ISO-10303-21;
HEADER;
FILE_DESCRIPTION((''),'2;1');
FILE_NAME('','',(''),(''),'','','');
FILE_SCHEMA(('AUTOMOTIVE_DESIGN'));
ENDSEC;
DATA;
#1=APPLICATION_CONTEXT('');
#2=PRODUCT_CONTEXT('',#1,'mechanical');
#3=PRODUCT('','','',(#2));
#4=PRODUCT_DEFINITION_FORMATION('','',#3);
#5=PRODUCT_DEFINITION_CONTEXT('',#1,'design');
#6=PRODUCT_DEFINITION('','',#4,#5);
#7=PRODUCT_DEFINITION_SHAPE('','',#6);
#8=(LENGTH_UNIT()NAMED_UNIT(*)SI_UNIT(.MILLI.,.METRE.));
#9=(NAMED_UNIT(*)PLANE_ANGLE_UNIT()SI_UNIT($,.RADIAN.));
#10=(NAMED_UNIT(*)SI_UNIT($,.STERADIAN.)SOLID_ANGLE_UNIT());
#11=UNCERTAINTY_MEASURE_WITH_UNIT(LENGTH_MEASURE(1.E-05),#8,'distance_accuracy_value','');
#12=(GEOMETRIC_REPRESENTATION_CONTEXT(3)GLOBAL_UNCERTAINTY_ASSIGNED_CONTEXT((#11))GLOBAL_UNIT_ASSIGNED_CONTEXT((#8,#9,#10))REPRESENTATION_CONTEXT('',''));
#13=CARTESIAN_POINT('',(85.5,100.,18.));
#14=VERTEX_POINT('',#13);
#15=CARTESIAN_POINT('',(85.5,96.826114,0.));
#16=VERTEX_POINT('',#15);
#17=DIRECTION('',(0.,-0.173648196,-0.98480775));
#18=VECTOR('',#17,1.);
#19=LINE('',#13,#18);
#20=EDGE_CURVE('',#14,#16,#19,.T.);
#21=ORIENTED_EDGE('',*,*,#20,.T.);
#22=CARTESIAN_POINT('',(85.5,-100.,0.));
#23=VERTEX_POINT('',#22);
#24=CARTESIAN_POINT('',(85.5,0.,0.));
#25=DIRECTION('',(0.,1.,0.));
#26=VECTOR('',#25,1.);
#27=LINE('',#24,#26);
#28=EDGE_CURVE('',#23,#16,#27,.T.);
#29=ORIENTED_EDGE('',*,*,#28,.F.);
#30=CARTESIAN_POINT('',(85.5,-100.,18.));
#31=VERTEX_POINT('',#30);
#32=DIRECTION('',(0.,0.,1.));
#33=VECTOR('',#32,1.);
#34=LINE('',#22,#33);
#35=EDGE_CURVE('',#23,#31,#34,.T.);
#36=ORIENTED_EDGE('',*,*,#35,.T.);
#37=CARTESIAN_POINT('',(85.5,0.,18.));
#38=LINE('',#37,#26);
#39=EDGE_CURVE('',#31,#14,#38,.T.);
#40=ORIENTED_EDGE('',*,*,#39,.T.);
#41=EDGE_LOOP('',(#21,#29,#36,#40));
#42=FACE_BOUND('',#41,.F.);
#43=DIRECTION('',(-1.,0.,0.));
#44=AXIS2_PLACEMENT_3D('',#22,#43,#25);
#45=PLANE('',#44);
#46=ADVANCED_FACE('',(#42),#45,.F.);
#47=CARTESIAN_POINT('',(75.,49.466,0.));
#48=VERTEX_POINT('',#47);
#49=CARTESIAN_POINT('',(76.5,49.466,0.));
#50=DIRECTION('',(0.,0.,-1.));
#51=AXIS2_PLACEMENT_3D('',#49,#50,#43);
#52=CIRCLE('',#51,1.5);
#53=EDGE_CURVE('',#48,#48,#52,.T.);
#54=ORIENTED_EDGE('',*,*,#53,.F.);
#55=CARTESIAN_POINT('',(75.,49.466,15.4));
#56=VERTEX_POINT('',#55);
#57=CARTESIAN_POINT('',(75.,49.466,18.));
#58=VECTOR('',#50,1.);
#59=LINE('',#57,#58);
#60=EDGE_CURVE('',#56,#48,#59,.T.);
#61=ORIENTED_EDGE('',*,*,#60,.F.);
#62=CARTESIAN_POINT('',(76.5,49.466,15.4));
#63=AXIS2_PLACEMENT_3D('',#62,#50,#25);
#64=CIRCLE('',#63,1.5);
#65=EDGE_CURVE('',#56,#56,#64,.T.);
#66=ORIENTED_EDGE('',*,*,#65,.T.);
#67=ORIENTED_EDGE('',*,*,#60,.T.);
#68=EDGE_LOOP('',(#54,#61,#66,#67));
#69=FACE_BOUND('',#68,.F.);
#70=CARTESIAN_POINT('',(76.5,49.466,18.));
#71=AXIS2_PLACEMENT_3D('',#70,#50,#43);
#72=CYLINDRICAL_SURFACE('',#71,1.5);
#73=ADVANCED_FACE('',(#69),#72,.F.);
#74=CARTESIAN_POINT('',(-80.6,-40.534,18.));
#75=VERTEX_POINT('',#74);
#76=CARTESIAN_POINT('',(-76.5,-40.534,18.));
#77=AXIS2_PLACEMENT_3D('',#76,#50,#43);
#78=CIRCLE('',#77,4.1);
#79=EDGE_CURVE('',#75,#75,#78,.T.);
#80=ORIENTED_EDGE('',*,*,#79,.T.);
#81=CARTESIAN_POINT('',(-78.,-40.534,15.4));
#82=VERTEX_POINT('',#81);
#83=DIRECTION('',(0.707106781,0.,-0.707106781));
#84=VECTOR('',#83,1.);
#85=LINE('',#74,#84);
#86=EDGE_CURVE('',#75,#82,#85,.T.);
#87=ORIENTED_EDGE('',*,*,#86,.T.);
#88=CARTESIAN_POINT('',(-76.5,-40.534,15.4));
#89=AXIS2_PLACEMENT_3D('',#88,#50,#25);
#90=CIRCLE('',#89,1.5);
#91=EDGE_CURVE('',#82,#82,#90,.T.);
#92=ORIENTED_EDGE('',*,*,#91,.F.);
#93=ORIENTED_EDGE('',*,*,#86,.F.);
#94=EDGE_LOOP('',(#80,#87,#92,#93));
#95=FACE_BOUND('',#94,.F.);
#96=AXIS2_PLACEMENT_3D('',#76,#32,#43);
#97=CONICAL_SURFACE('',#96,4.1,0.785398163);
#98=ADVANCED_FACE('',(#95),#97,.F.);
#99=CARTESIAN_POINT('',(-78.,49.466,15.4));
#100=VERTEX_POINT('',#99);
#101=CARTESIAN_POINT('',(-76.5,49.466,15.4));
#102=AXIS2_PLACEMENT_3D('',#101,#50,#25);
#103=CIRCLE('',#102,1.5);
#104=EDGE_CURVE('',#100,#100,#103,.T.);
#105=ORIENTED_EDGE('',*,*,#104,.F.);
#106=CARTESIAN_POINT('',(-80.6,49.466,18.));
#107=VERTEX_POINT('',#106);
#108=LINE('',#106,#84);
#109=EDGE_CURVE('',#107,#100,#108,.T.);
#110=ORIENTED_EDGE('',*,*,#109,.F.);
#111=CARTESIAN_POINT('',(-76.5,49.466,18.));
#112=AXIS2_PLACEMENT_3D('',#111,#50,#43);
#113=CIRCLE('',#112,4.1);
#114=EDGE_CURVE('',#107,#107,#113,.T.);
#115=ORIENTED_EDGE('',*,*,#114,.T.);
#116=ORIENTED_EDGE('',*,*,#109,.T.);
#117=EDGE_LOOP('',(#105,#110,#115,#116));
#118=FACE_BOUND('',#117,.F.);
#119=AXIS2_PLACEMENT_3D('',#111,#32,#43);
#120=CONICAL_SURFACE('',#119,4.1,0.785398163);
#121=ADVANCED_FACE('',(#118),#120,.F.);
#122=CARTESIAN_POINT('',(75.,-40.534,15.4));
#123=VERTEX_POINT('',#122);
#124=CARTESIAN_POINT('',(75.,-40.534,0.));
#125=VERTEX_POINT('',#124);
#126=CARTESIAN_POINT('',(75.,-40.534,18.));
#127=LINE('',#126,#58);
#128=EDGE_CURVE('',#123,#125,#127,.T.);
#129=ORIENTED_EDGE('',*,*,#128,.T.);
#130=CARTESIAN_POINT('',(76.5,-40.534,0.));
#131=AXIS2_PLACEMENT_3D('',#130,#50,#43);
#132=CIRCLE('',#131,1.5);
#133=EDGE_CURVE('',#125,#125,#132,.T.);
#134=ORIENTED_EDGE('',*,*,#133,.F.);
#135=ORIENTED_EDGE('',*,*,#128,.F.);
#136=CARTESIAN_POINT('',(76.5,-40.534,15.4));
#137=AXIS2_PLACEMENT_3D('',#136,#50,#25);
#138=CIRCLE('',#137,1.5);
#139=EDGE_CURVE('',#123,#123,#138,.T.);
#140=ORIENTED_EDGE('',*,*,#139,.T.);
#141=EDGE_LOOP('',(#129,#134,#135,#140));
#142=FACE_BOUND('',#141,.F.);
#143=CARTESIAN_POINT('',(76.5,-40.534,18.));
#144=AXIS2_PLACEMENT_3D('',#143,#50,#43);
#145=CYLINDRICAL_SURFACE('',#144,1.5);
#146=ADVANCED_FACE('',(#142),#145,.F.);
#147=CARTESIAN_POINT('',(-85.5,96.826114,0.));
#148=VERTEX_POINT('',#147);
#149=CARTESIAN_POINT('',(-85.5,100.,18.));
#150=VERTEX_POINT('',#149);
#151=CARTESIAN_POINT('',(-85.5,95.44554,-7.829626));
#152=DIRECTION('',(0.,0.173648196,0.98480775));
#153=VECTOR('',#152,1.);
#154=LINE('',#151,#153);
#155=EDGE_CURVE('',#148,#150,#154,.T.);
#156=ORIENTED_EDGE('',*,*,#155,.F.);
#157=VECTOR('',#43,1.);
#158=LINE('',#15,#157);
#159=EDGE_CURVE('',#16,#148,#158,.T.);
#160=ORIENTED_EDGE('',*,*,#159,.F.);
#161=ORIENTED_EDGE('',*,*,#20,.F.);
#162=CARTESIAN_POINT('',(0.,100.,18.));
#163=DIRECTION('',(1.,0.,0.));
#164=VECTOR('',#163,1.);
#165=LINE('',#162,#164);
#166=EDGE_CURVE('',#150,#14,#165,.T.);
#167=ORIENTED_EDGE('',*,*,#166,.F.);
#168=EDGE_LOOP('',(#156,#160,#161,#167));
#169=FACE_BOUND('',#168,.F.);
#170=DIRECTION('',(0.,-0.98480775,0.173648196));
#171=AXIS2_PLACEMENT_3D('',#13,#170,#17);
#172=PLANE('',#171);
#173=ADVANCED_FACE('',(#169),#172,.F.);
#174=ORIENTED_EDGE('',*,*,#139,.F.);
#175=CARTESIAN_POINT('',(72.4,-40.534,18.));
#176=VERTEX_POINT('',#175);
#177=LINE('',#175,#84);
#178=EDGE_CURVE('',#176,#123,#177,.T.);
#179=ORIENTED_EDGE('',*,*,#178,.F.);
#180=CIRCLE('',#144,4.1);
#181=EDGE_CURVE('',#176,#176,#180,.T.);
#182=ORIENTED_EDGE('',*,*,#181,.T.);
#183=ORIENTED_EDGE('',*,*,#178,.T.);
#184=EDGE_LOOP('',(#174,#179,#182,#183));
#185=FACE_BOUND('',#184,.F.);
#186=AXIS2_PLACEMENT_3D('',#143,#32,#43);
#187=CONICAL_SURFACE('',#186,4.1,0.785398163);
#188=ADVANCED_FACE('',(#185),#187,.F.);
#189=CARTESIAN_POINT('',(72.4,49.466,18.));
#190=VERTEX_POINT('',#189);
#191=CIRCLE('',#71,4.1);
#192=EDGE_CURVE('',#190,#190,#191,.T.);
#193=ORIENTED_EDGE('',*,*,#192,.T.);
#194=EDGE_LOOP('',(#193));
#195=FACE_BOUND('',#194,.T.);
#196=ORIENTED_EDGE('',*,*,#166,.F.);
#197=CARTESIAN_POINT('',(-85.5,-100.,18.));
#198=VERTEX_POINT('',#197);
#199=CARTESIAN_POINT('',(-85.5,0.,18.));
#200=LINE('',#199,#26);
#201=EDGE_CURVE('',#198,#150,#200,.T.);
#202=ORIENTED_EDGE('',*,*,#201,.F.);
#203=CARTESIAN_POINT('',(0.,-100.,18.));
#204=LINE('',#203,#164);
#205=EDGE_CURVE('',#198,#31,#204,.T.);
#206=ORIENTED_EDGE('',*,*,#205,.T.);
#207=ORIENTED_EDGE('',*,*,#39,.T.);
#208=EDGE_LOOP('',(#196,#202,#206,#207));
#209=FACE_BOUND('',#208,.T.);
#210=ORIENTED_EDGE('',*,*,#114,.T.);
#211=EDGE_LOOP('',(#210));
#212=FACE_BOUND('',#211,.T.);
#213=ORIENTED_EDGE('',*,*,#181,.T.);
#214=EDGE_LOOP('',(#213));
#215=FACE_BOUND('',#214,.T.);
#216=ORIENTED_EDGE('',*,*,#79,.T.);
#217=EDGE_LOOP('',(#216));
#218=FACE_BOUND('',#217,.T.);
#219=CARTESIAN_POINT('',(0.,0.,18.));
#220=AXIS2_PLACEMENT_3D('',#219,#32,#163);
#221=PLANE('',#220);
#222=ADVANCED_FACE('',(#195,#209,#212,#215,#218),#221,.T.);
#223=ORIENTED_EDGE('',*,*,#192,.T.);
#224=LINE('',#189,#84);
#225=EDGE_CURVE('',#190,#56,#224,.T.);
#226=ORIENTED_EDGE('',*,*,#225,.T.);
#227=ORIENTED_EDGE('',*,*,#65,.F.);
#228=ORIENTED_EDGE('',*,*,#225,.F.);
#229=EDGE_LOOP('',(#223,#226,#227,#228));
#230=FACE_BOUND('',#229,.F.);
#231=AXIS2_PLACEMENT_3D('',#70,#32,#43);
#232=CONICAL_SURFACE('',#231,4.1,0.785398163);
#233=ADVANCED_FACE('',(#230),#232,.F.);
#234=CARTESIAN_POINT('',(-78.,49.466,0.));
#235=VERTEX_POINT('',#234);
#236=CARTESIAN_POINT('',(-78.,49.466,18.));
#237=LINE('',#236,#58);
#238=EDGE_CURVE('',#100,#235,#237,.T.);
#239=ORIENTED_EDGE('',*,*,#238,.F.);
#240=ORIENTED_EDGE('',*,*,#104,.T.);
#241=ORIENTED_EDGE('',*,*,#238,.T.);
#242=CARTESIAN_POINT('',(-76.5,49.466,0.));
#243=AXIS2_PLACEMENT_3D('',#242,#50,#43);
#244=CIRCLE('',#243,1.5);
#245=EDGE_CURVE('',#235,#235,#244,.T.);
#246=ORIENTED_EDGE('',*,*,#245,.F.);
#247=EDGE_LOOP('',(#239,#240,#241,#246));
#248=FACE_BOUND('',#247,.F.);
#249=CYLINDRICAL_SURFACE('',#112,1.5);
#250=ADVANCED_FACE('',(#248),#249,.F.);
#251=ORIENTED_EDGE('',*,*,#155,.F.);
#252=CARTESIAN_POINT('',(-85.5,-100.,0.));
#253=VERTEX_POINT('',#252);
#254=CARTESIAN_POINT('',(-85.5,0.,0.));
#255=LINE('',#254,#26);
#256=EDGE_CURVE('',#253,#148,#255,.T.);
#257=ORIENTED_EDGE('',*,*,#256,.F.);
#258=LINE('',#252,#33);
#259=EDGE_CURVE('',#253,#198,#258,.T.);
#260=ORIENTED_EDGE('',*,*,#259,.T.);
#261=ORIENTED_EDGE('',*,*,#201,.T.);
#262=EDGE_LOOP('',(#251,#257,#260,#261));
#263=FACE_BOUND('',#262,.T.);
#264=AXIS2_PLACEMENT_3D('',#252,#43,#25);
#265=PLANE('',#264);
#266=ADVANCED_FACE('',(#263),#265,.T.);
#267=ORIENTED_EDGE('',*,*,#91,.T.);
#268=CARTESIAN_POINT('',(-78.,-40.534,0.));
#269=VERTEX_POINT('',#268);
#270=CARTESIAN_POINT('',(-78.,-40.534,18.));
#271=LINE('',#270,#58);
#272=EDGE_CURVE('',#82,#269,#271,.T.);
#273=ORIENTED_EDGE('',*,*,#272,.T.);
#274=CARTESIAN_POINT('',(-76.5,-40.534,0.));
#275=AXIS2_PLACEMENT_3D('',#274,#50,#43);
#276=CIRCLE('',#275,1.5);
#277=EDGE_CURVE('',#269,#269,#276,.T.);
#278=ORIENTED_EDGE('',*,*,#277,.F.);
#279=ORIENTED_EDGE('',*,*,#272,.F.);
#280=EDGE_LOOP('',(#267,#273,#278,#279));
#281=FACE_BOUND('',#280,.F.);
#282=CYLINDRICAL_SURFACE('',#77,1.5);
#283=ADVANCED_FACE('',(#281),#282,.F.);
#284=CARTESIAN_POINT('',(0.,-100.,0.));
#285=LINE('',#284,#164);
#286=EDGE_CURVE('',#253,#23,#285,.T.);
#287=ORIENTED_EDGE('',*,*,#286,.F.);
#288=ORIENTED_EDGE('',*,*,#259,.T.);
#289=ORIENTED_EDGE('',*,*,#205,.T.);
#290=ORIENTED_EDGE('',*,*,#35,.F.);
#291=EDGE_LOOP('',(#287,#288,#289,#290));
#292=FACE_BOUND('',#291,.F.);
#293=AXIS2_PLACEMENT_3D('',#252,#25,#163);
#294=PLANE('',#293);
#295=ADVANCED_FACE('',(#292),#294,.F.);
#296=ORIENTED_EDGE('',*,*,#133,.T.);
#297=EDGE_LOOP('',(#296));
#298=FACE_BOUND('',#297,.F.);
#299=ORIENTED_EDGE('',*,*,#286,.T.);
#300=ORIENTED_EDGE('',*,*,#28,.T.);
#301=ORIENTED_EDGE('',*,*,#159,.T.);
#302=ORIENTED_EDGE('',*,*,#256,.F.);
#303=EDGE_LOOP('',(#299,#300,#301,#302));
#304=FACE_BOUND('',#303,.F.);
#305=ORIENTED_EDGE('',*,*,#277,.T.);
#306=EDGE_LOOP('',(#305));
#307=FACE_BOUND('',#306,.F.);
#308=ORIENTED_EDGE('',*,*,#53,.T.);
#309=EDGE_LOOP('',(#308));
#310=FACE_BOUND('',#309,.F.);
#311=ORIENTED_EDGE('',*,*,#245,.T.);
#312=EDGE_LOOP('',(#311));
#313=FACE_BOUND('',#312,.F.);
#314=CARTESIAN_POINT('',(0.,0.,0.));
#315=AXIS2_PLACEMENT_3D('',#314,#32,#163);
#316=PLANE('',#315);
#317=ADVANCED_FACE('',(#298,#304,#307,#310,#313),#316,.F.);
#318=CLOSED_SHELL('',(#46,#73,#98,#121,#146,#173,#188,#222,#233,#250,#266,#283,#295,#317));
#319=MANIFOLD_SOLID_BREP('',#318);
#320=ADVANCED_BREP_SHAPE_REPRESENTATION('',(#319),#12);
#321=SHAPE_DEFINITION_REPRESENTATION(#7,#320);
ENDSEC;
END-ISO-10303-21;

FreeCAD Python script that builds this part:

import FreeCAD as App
import Part
import Sketcher
Q = App.Units.Quantity

doc = App.newDocument("Part")
params = doc.addObject("Spreadsheet::Sheet", "Params")
for row, (alias, value) in enumerate([
    ("sketch1_width", "171 mm"),
    ("sketch1_height", "200 mm"),
    ("pad1_length", "18 mm"),
    ("sketch2_height", "18 mm"),
    ("sketch3_diameter", "3 mm"),
    ("hole_diameter", "3 mm"),
    ("hole_csink_diameter", "8.2 mm"),
    ("sketch4_diameter", "3 mm"),
    ("hole2_diameter", "3 mm"),
    ("hole2_csink_diameter", "8.2 mm"),
], start=1):
    params.set(f"A{row}", alias)
    params.set(f"B{row}", "=" + value)
    params.setAlias(f"B{row}", alias)

body = doc.addObject("PartDesign::Body", "Body")

# Sketch on XY plane
sketch1 = doc.addObject("Sketcher::SketchObject", "Sketch")
body.addObject(sketch1)
sketch1.AttachmentSupport = (doc.XY_Plane, [""])
sketch1.MapMode = "FlatFace"
sketch1.addGeometry(Part.LineSegment(App.Vector(-85.5, 100, 0), App.Vector(-85.5, -100, 0)), False)
sketch1.addGeometry(Part.LineSegment(App.Vector(-85.5, -100, 0), App.Vector(85.5, -100, 0)), False)
sketch1.addGeometry(Part.LineSegment(App.Vector(85.5, -100, 0), App.Vector(85.5, 100, 0)), False)
sketch1.addGeometry(Part.LineSegment(App.Vector(85.5, 100, 0), App.Vector(-85.5, 100, 0)), False)
sketch1.addConstraint(Sketcher.Constraint("Coincident", 0, 2, 1, 1))
sketch1.addConstraint(Sketcher.Constraint("Coincident", 1, 2, 2, 1))
sketch1.addConstraint(Sketcher.Constraint("Coincident", 2, 2, 3, 1))
sketch1.addConstraint(Sketcher.Constraint("Coincident", 3, 2, 0, 1))
sketch1.addConstraint(Sketcher.Constraint("Vertical", 0))
sketch1.addConstraint(Sketcher.Constraint("Horizontal", 1))
sketch1.addConstraint(Sketcher.Constraint("Vertical", 2))
sketch1.addConstraint(Sketcher.Constraint("Horizontal", 3))
sketch1.addConstraint(Sketcher.Constraint("Symmetric", 0, 2, 2, 2, -1, 1))
sketch1.addConstraint(Sketcher.Constraint("DistanceX", 1, 1, 1, 2, 171.0))
sketch1.addConstraint(Sketcher.Constraint("DistanceY", 0, 2, 0, 1, 200.0))
sketch1.setExpression("Constraints[9]", "Params.sketch1_width")
sketch1.setExpression("Constraints[10]", "Params.sketch1_height")
pad1 = doc.addObject("PartDesign::Pad", "Pad")
body.addObject(pad1)
pad1.Profile = sketch1
pad1.setExpression("Length", "Params.pad1_length")

# Sketch on YZ plane
sketch2 = doc.addObject("Sketcher::SketchObject", "Sketch001")
body.addObject(sketch2)
sketch2.AttachmentSupport = (doc.YZ_Plane, [""])
sketch2.MapMode = "FlatFace"
sketch2.AttachmentOffset = App.Placement(App.Vector(0, 0, 85.5), App.Rotation())
sketch2.addGeometry(Part.LineSegment(App.Vector(100, 0, 0), App.Vector(100, 18, 0)), False)
sketch2.addGeometry(Part.LineSegment(App.Vector(100, 18, 0), App.Vector(96.826114, 0, 0)), False)
sketch2.addGeometry(Part.LineSegment(App.Vector(96.826114, 0, 0), App.Vector(100, 0, 0)), False)
sketch2.addConstraint(Sketcher.Constraint("Coincident", 0, 2, 1, 1))
sketch2.addConstraint(Sketcher.Constraint("Coincident", 1, 2, 2, 1))
sketch2.addConstraint(Sketcher.Constraint("Coincident", 2, 2, 0, 1))
sketch2.addConstraint(Sketcher.Constraint("Vertical", 0))
sketch2.addConstraint(Sketcher.Constraint("Horizontal", 2))
sketch2.addConstraint(Sketcher.Constraint("PointOnObject", 1, 2, -1))
sketch2.addConstraint(Sketcher.Constraint("DistanceY", 0, 1, 0, 2, 18.0))
sketch2.addConstraint(Sketcher.Constraint("Angle", 1, Q("-100.000001 deg")))
sketch2.addConstraint(Sketcher.Constraint("DistanceX", -1, 1, 0, 2, 100.0))
sketch2.setExpression("Constraints[6]", "Params.sketch2_height")
pocket1 = doc.addObject("PartDesign::Pocket", "Pocket")
body.addObject(pocket1)
pocket1.Profile = sketch2
pocket1.Type = "ThroughAll"

# Sketch on XY plane
sketch3 = doc.addObject("Sketcher::SketchObject", "Sketch002")
body.addObject(sketch3)
sketch3.AttachmentSupport = (doc.XY_Plane, [""])
sketch3.MapMode = "FlatFace"
sketch3.AttachmentOffset = App.Placement(App.Vector(0, 0, 18), App.Rotation())
sketch3.addGeometry(Part.Circle(App.Vector(-76.5, 49.466, 0), App.Vector(0, 0, 1), 1.5), False)
sketch3.addGeometry(Part.Circle(App.Vector(76.5, 49.466, 0), App.Vector(0, 0, 1), 1.5), False)
sketch3.addConstraint(Sketcher.Constraint("Equal", 0, 1))
sketch3.addConstraint(Sketcher.Constraint("Symmetric", 0, 3, 1, 3, -2))
sketch3.addConstraint(Sketcher.Constraint("Diameter", 0, 3.0))
sketch3.addConstraint(Sketcher.Constraint("DistanceX", 0, 3, 1, 3, 153.0))
sketch3.addConstraint(Sketcher.Constraint("DistanceY", -1, 1, 0, 3, 49.466))
sketch3.setExpression("Constraints[2]", "Params.sketch3_diameter")
doc.recompute()
hole = doc.addObject("PartDesign::Hole", "Hole")
body.addObject(hole)
hole.Profile = sketch3
hole.ThreadType = "None"
hole.setExpression("Diameter", "Params.hole_diameter")
hole.DepthType = "ThroughAll"
hole.HoleCutType = "Countersink"
hole.setExpression("HoleCutDiameter", "Params.hole_csink_diameter")
hole.HoleCutCountersinkAngle = 90

# Sketch on XY plane
sketch4 = doc.addObject("Sketcher::SketchObject", "Sketch003")
body.addObject(sketch4)
sketch4.AttachmentSupport = (doc.XY_Plane, [""])
sketch4.MapMode = "FlatFace"
sketch4.AttachmentOffset = App.Placement(App.Vector(0, 0, 18), App.Rotation())
sketch4.addGeometry(Part.Circle(App.Vector(-76.5, -40.534, 0), App.Vector(0, 0, 1), 1.5), False)
sketch4.addGeometry(Part.Circle(App.Vector(76.5, -40.534, 0), App.Vector(0, 0, 1), 1.5), False)
sketch4.addConstraint(Sketcher.Constraint("Equal", 0, 1))
sketch4.addConstraint(Sketcher.Constraint("Symmetric", 0, 3, 1, 3, -2))
sketch4.addConstraint(Sketcher.Constraint("Diameter", 0, 3.0))
sketch4.addConstraint(Sketcher.Constraint("DistanceX", 0, 3, 1, 3, 153.0))
sketch4.addConstraint(Sketcher.Constraint("DistanceY", 0, 3, -1, 1, 40.534))
sketch4.setExpression("Constraints[2]", "Params.sketch4_diameter")
doc.recompute()
hole2 = doc.addObject("PartDesign::Hole", "Hole001")
body.addObject(hole2)
hole2.Profile = sketch4
hole2.ThreadType = "None"
hole2.setExpression("Diameter", "Params.hole2_diameter")
hole2.DepthType = "ThroughAll"
hole2.HoleCutType = "Countersink"
hole2.setExpression("HoleCutDiameter", "Params.hole2_csink_diameter")
hole2.HoleCutCountersinkAngle = 90

doc.recompute()
